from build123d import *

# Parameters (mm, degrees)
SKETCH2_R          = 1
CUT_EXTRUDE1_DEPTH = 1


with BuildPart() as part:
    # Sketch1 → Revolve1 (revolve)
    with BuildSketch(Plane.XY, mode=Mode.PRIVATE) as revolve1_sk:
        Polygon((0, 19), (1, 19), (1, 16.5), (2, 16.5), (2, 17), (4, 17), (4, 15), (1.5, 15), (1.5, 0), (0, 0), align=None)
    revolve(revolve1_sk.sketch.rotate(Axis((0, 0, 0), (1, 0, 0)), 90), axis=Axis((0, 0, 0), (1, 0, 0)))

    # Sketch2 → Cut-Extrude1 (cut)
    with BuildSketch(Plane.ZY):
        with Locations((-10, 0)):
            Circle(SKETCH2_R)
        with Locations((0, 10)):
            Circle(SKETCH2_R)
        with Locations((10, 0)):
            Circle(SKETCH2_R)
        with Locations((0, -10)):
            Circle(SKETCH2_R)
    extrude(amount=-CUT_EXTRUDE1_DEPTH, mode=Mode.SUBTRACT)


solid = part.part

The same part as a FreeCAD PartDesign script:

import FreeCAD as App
import Part
import Sketcher

doc = App.newDocument("Part")
body = doc.addObject("PartDesign::Body", "Body")

# Sketch on XY plane
sketch1 = doc.addObject("Sketcher::SketchObject", "Sketch")
body.addObject(sketch1)
sketch1.AttachmentSupport = (doc.XY_Plane, [""])
sketch1.MapMode = "FlatFace"
sketch1.addGeometry([
    Part.LineSegment(App.Vector(1, 19, 0), App.Vector(0, 19, 0)),  # 0
    Part.LineSegment(App.Vector(0, 19, 0), App.Vector(0, 0, 0)),  # 1
    Part.LineSegment(App.Vector(0, 0, 0), App.Vector(1.5, 0, 0)),  # 2
    Part.LineSegment(App.Vector(1.5, 0, 0), App.Vector(1.5, 15, 0)),  # 3
    Part.LineSegment(App.Vector(1.5, 15, 0), App.Vector(4, 15, 0)),  # 4
    Part.LineSegment(App.Vector(4, 15, 0), App.Vector(4, 17, 0)),  # 5
    Part.LineSegment(App.Vector(4, 17, 0), App.Vector(2, 17, 0)),  # 6
    Part.LineSegment(App.Vector(2, 17, 0), App.Vector(2, 16.5, 0)),  # 7
    Part.LineSegment(App.Vector(2, 16.5, 0), App.Vector(1, 16.5, 0)),  # 8
    Part.LineSegment(App.Vector(1, 16.5, 0), App.Vector(1, 19, 0)),  # 9
], False)
sketch1.addConstraint([
    Sketcher.Constraint("Coincident", 0, 2, 1, 1),
    Sketcher.Constraint("Coincident", 1, 2, 2, 1),
    Sketcher.Constraint("Coincident", 2, 2, 3, 1),
    Sketcher.Constraint("Coincident", 3, 2, 4, 1),
    Sketcher.Constraint("Coincident", 4, 2, 5, 1),
    Sketcher.Constraint("Coincident", 5, 2, 6, 1),
    Sketcher.Constraint("Coincident", 6, 2, 7, 1),
    Sketcher.Constraint("Coincident", 7, 2, 8, 1),
    Sketcher.Constraint("Coincident", 8, 2, 9, 1),
    Sketcher.Constraint("Coincident", 9, 2, 0, 1),
    Sketcher.Constraint("Horizontal", 0),
    Sketcher.Constraint("Vertical", 1),
    Sketcher.Constraint("Horizontal", 2),
    Sketcher.Constraint("Vertical", 3),
    Sketcher.Constraint("Horizontal", 4),
    Sketcher.Constraint("Vertical", 5),
    Sketcher.Constraint("Horizontal", 6),
    Sketcher.Constraint("Vertical", 7),
    Sketcher.Constraint("Horizontal", 8),
    Sketcher.Constraint("Vertical", 9),
    Sketcher.Constraint("Coincident", 1, 2, -1, 1),
    Sketcher.Constraint("Equal", 0, 8),
    Sketcher.Constraint("Equal", 6, 5),
    Sketcher.Constraint("Equal", 4, 9),
    Sketcher.Constraint("DistanceX", 0, 2, 0, 1, 1.0),
    Sketcher.Constraint("DistanceX", 6, 2, 6, 1, 2.0),
    Sketcher.Constraint("DistanceY", 1, 2, 1, 1, 19.0),
    Sketcher.Constraint("DistanceY", 3, 1, 3, 2, 15.0),
    Sketcher.Constraint("DistanceX", 2, 1, 2, 2, 1.5),
])
revolution = doc.addObject("PartDesign::Revolution", "Revolution")
body.addObject(revolution)
revolution.Profile = sketch1
revolution.ReferenceAxis = (sketch1, ["H_Axis"])
revolution.Angle = 360

# Sketch on YZ plane
sketch2 = doc.addObject("Sketcher::SketchObject", "Sketch001")
body.addObject(sketch2)
sketch2.AttachmentSupport = (doc.YZ_Plane, [""])
sketch2.MapMode = "FlatFace"
sketch2.addGeometry([
    Part.Circle(App.Vector(0, -10, 0), App.Vector(0, 0, 1), 1),
    Part.Circle(App.Vector(10, 0, 0), App.Vector(0, 0, 1), 1),
    Part.Circle(App.Vector(0, 10, 0), App.Vector(0, 0, 1), 1),
    Part.Circle(App.Vector(-10, 0, 0), App.Vector(0, 0, 1), 1),
], False)
sketch2.addConstraint([
    Sketcher.Constraint("Equal", 0, 1),
    Sketcher.Constraint("Equal", 1, 2),
    Sketcher.Constraint("Equal", 2, 3),
    Sketcher.Constraint("Symmetric", 0, 3, 2, 3, -1, 1),
    Sketcher.Constraint("Symmetric", 1, 3, 3, 3, -1, 1),
    Sketcher.Constraint("PointOnObject", 0, 3, -2),
    Sketcher.Constraint("PointOnObject", 1, 3, -1),
    Sketcher.Constraint("Diameter", 0, 2.0),
    Sketcher.Constraint("DistanceY", 0, 3, -1, 1, 10.0),
    Sketcher.Constraint("DistanceX", -1, 1, 1, 3, 10.0),
])
pocket1 = doc.addObject("PartDesign::Pocket", "Pocket")
body.addObject(pocket1)
pocket1.Profile = sketch2
pocket1.Length = 1
pocket1.Reversed = True

doc.recompute()
